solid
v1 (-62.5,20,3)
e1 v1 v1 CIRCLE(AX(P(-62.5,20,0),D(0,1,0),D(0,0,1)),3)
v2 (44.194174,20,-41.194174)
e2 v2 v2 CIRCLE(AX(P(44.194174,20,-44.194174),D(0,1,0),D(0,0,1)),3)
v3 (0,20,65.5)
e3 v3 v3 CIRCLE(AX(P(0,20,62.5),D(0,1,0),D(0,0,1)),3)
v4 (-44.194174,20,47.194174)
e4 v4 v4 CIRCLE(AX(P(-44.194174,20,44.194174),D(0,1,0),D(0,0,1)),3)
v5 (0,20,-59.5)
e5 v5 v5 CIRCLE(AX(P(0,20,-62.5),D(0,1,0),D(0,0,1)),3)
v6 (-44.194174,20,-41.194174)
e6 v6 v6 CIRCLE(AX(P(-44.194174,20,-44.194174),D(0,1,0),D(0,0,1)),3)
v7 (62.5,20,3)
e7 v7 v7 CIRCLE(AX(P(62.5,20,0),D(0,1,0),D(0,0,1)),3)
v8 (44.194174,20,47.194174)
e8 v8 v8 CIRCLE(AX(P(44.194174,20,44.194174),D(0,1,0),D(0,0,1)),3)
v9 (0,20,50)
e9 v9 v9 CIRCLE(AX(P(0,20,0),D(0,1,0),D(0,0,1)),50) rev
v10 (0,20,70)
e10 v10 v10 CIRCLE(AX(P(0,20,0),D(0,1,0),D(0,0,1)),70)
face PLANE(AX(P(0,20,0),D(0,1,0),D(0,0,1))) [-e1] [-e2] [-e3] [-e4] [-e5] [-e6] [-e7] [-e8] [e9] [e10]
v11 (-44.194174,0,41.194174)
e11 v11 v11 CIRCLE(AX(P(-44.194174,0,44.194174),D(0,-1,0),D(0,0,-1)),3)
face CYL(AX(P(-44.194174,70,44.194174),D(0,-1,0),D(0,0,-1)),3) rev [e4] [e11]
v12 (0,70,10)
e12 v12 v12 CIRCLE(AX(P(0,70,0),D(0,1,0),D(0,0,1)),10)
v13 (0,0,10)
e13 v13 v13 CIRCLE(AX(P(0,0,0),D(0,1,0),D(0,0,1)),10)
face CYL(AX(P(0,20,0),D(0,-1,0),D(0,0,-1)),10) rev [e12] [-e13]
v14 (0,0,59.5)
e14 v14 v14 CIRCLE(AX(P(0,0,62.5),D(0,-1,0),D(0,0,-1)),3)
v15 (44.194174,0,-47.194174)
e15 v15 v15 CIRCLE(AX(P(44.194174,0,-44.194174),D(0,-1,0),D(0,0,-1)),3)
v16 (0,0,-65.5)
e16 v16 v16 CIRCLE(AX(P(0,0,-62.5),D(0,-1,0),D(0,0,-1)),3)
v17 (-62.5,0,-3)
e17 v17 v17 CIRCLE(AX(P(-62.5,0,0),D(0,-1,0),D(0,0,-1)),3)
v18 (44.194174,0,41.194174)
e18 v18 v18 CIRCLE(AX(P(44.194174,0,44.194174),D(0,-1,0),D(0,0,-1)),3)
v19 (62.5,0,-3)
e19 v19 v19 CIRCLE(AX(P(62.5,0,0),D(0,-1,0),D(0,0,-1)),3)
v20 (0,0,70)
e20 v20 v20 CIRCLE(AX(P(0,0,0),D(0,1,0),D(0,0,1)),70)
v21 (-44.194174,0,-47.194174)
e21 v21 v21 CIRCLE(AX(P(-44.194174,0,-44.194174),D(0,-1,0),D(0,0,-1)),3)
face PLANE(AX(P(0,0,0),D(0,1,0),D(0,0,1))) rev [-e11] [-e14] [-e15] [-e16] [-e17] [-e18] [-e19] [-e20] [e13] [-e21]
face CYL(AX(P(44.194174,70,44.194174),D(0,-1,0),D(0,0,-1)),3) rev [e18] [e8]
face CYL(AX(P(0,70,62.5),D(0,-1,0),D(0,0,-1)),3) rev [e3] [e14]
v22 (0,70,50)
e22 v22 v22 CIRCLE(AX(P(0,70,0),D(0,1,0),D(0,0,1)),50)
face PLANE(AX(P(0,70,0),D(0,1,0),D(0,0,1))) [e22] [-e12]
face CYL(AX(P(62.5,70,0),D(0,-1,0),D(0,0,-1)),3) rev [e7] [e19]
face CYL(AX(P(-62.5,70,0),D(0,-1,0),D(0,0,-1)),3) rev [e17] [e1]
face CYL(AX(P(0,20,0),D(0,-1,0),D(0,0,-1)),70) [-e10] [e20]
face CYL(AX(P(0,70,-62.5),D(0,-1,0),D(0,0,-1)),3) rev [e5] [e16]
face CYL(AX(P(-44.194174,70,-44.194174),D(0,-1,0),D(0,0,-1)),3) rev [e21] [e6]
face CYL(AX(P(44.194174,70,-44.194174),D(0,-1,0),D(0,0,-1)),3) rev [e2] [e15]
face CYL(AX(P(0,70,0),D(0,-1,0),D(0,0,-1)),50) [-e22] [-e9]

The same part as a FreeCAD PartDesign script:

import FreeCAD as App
import Part
import Sketcher

V = App.Vector
Q = App.Units.Quantity

doc = App.newDocument("Part")
body = doc.addObject("PartDesign::Body", "Body")

# Sketch on XZ plane
sketch1 = body.newObject("Sketcher::SketchObject", "Sketch")
sketch1.AttachmentSupport = (doc.getObject("XZ_Plane"), [""])
sketch1.MapMode = "FlatFace"
sketch1.addGeometry([
    Part.Circle(V(0, 0, 0), V(0, 0, 1), 70),
    Part.Circle(V(0, 0, 0), V(0, 0, 1), 10),
], False)
sketch1.addConstraint([
    Sketcher.Constraint("Coincident", 0, 3, -1, 1),
    Sketcher.Constraint("Coincident", 1, 3, -1, 1),
    Sketcher.Constraint("Diameter", 0, Q("140 mm")),
    Sketcher.Constraint("Diameter", 1, Q("20 mm")),
])
pad1 = body.newObject("PartDesign::Pad", "Pad")
pad1.Profile = sketch1
pad1.Length = 20
pad1.Reversed = True

# Sketch on XZ plane
sketch2 = body.newObject("Sketcher::SketchObject", "Sketch001")
sketch2.AttachmentSupport = (doc.getObject("XZ_Plane"), [""])
sketch2.MapMode = "FlatFace"
sketch2.addGeometry([
    Part.Circle(V(0, 0, 0), V(0, 0, 1), 50),
    Part.Circle(V(0, 0, 0), V(0, 0, 1), 10),
], False)
sketch2.addConstraint([
    Sketcher.Constraint("Coincident", 0, 3, -1, 1),
    Sketcher.Constraint("Coincident", 1, 3, -1, 1),
    Sketcher.Constraint("Diameter", 0, Q("100 mm")),
    Sketcher.Constraint("Diameter", 1, Q("20 mm")),
])
pad2 = body.newObject("PartDesign::Pad", "Pad001")
pad2.Profile = sketch2
pad2.Length = 70
pad2.Reversed = True

# Sketch on XZ plane
sketch3 = body.newObject("Sketcher::SketchObject", "Sketch002")
sketch3.AttachmentSupport = (doc.getObject("XZ_Plane"), [""])
sketch3.MapMode = "FlatFace"
sketch3.addGeometry([
    Part.Circle(V(0, 62.5, 0), V(0, 0, 1), 3),  # 0
    Part.Circle(V(44.194174, 44.194174, 0), V(0, 0, 1), 3),  # 1
    Part.Circle(V(62.5, 0, 0), V(0, 0, 1), 3),  # 2
    Part.Circle(V(44.194174, -44.194174, 0), V(0, 0, 1), 3),  # 3
    Part.Circle(V(0, -62.5, 0), V(0, 0, 1), 3),  # 4
    Part.Circle(V(-44.194174, -44.194174, 0), V(0, 0, 1), 3),  # 5
    Part.Circle(V(-62.5, 0, 0), V(0, 0, 1), 3),  # 6
    Part.Circle(V(-44.194174, 44.194174, 0), V(0, 0, 1), 3),  # 7
], False)
sketch3.addConstraint([
    Sketcher.Constraint("Equal", 0, 1),
    Sketcher.Constraint("Equal", 1, 2),
    Sketcher.Constraint("Equal", 2, 3),
    Sketcher.Constraint("Equal", 3, 4),
    Sketcher.Constraint("Equal", 4, 5),
    Sketcher.Constraint("Equal", 5, 6),
    Sketcher.Constraint("Equal", 6, 7),
    Sketcher.Constraint("Symmetric", 0, 3, 4, 3, -1, 1),
    Sketcher.Constraint("Symmetric", 1, 3, 5, 3, -1, 1),
    Sketcher.Constraint("Symmetric", 2, 3, 6, 3, -1, 1),
    Sketcher.Constraint("Symmetric", 3, 3, 7, 3, -1, 1),
    Sketcher.Constraint("Symmetric", 3, 3, 5, 3, -2),
    Sketcher.Constraint("PointOnObject", 0, 3, -2),
    Sketcher.Constraint("PointOnObject", 2, 3, -1),
    Sketcher.Constraint("Diameter", 0, Q("6 mm")),
    Sketcher.Constraint("DistanceY", 4, 3, 0, 3, Q("125 mm")),
    Sketcher.Constraint("DistanceX", -1, 1, 2, 3, Q("62.5 mm")),
    Sketcher.Constraint("DistanceX", -1, 1, 1, 3, Q("44.194174 mm")),
    Sketcher.Constraint("DistanceY", -1, 1, 1, 3, Q("44.194174 mm")),
])
pocket1 = body.newObject("PartDesign::Pocket", "Pocket")
pocket1.Profile = sketch3
pocket1.Type = "ThroughAll"

doc.recompute()
